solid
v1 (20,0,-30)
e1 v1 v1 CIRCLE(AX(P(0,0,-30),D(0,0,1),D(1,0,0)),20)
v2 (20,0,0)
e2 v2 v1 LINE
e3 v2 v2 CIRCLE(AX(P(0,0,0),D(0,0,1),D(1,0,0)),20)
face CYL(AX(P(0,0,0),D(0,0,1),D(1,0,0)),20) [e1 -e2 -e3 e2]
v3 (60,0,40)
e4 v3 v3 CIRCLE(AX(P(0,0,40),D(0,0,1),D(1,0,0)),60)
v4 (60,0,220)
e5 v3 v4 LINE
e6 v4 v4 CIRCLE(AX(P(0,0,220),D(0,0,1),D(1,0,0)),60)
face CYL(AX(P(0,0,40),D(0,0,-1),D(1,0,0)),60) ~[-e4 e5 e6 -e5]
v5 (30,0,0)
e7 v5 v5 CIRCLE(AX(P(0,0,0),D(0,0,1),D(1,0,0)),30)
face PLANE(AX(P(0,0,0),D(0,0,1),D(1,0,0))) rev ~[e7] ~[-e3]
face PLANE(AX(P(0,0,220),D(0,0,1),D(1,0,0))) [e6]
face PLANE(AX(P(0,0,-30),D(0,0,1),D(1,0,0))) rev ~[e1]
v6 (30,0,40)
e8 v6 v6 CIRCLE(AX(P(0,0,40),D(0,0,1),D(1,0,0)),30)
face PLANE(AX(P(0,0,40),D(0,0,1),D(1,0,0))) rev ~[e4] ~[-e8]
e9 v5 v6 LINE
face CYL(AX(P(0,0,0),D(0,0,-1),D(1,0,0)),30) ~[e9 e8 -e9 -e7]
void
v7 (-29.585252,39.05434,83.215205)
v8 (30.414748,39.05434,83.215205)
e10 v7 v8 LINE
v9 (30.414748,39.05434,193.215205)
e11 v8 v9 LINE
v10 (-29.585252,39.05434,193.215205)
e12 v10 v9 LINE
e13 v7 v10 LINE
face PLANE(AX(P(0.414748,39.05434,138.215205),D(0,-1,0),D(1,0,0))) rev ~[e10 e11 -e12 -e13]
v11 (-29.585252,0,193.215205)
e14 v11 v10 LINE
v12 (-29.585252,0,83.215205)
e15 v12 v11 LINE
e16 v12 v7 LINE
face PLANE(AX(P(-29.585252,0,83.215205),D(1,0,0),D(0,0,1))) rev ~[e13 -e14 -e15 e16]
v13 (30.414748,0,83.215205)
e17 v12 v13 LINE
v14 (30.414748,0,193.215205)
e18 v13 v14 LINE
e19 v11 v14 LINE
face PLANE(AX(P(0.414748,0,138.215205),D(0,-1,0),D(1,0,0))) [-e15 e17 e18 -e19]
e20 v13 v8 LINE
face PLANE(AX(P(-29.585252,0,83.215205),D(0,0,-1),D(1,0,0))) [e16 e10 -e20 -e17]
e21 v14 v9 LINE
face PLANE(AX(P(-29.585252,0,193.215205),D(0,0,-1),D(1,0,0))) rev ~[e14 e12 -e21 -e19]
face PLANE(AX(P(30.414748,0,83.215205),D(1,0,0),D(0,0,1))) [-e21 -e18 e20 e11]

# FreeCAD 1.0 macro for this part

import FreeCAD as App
import Part
import Sketcher
from FreeCAD import Vector


def add_polygon(sketch, points):
    """Adds a closed chain of lines whose ends are joined by coincident constraints."""
    first, n = sketch.GeometryCount, len(points)
    for a, b in zip(points, points[1:] + points[:1]):
        sketch.addGeometry(Part.LineSegment(App.Vector(*a, 0), App.Vector(*b, 0)), False)
    for i in range(n):
        sketch.addConstraint(Sketcher.Constraint("Coincident", first + i, 2, first + (i + 1) % n, 1))

doc = App.newDocument("Part")
params = doc.addObject("Spreadsheet::Sheet", "Params")
for row, (alias, value) in enumerate([
    ("sketch1_diameter", "40 mm"),
    ("pad1_length", "30 mm"),
    ("sketch2_diameter", "60 mm"),
    ("pad2_length", "40 mm"),
    ("sketch3_diameter", "120 mm"),
    ("pad3_length", "180 mm"),
    ("sketch4_width", "60 mm"),
    ("sketch4_height", "110 mm"),
    ("pocket1_length", "39.05434 mm"),
], start=1):
    params.set(f"A{row}", alias)
    params.set(f"B{row}", "=" + value)
    params.setAlias(f"B{row}", alias)

body = doc.addObject("PartDesign::Body", "Body")

# Sketch on XY plane
sketch1 = body.newObject("Sketcher::SketchObject", "Sketch")
sketch1.AttachmentSupport = (doc.getObject("XY_Plane"), [""])
sketch1.MapMode = "FlatFace"
sketch1.addGeometry(Part.Circle(Vector(0, 0, 0), Vector(0, 0, 1), 20), False)
sketch1.addConstraint([
    Sketcher.Constraint("Coincident", 0, 3, -1, 1),
    Sketcher.Constraint("Diameter", 0, 40.0),
])
sketch1.setExpression("Constraints[1]", "Params.sketch1_diameter")
pad1 = body.newObject("PartDesign::Pad", "Pad")
pad1.Profile = sketch1
pad1.setExpression("Length", "Params.pad1_length")
pad1.Reversed = True

# Sketch on XY plane
sketch2 = body.newObject("Sketcher::SketchObject", "Sketch001")
sketch2.AttachmentSupport = (doc.getObject("XY_Plane"), [""])
sketch2.MapMode = "FlatFace"
sketch2.addGeometry(Part.Circle(Vector(0, 0, 0), Vector(0, 0, 1), 30), False)
sketch2.addConstraint([
    Sketcher.Constraint("Coincident", 0, 3, -1, 1),
    Sketcher.Constraint("Diameter", 0, 60.0),
])
sketch2.setExpression("Constraints[1]", "Params.sketch2_diameter")
pad2 = body.newObject("PartDesign::Pad", "Pad001")
pad2.Profile = sketch2
pad2.setExpression("Length", "Params.pad2_length")

# Sketch on XY plane
sketch3 = body.newObject("Sketcher::SketchObject", "Sketch002")
sketch3.AttachmentSupport = (doc.getObject("XY_Plane"), [""])
sketch3.MapMode = "FlatFace"
sketch3.AttachmentOffset = App.Placement(Vector(0, 0, 40), App.Rotation())
sketch3.addGeometry(Part.Circle(Vector(0, 0, 0), Vector(0, 0, 1), 60), False)
sketch3.addConstraint([
    Sketcher.Constraint("Coincident", 0, 3, -1, 1),
    Sketcher.Constraint("Diameter", 0, 120.0),
])
sketch3.setExpression("Constraints[1]", "Params.sketch3_diameter")
pad3 = body.newObject("PartDesign::Pad", "Pad002")
pad3.Profile = sketch3
pad3.setExpression("Length", "Params.pad3_length")

# Sketch on XZ plane
sketch4 = body.newObject("Sketcher::SketchObject", "Sketch003")
sketch4.AttachmentSupport = (doc.getObject("XZ_Plane"), [""])
sketch4.MapMode = "FlatFace"
add_polygon(sketch4, [(-30, 193), (-30, 83), (30, 83), (30, 193)])  # lines 0-3
sketch4.addConstraint([
    Sketcher.Constraint("Vertical", 0),
    Sketcher.Constraint("Horizontal", 1),
    Sketcher.Constraint("Vertical", 2),
    Sketcher.Constraint("Horizontal", 3),
    Sketcher.Constraint("DistanceX", 1, 1, 1, 2, 60.0),
    Sketcher.Constraint("DistanceY", 0, 2, 0, 1, 110.0),
    Sketcher.Constraint("DistanceX", 0, 2, -1, 1, 29.585252),
    Sketcher.Constraint("DistanceY", -1, 1, 0, 2, 83.215205),
])
sketch4.setExpression("Constraints[8]", "Params.sketch4_width")
sketch4.setExpression("Constraints[9]", "Params.sketch4_height")
pocket1 = body.newObject("PartDesign::Pocket", "Pocket")
pocket1.Profile = sketch4
pocket1.setExpression("Length", "Params.pocket1_length")

doc.recompute()
